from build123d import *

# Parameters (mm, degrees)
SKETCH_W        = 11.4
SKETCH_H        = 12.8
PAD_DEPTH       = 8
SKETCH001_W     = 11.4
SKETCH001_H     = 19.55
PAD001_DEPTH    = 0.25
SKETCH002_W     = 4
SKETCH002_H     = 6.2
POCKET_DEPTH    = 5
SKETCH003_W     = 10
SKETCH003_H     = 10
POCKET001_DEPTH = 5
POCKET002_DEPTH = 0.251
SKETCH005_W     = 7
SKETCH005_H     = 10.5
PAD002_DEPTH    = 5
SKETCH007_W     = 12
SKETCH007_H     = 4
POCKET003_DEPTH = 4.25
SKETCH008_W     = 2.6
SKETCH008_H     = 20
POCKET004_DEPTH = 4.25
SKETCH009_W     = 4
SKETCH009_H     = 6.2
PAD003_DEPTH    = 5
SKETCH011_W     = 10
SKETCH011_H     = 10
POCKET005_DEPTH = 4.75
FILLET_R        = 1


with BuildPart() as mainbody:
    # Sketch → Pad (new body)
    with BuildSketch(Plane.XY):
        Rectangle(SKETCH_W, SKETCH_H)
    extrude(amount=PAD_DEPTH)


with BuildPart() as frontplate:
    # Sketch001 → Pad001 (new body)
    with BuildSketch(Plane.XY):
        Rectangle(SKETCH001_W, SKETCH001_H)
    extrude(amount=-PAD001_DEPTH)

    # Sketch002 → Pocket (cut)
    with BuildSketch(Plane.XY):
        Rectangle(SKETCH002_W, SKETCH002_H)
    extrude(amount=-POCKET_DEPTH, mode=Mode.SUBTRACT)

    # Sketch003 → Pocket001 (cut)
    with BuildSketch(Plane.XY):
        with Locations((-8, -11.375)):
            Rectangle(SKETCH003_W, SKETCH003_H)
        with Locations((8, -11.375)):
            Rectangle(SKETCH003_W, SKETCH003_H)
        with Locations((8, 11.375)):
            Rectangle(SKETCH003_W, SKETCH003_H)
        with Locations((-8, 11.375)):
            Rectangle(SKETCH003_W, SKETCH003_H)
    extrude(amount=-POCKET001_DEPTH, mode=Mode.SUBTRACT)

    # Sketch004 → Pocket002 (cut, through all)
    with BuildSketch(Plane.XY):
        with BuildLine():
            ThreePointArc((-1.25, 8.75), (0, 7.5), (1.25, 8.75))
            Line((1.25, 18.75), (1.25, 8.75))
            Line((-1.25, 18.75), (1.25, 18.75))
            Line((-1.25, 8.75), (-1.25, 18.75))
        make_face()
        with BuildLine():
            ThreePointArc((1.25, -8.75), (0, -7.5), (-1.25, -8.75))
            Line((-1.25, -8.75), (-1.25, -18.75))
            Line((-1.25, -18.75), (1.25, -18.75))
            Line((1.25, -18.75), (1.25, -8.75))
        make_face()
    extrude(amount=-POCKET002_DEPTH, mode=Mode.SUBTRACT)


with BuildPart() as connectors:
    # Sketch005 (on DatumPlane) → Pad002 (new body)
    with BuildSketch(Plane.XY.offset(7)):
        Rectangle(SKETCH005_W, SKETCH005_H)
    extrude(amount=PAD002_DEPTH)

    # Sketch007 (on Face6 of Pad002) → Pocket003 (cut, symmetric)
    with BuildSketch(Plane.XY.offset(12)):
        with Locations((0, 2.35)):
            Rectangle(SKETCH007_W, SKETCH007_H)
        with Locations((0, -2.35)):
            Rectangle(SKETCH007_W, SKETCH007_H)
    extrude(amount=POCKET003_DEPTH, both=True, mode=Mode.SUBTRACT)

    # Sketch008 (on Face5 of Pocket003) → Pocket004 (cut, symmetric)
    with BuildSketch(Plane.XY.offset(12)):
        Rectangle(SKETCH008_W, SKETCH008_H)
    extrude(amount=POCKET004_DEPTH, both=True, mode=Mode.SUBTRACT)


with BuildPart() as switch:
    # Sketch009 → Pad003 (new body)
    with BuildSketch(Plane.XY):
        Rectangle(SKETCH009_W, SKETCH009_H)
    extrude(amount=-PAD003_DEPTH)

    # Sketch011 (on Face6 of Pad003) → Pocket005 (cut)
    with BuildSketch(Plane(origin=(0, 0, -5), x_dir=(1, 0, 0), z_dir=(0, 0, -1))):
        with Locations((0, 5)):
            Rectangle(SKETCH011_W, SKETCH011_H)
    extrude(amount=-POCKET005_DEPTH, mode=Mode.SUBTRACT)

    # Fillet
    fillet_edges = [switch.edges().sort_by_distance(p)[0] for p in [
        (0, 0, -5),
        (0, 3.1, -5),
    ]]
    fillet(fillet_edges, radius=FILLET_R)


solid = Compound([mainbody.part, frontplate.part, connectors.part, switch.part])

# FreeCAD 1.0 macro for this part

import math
import FreeCAD as App
import Part
import Sketcher
from FreeCAD import Vector
Q = App.Units.Quantity


def edges_at(feature, points):
    """Names of the edges that pass closest to the given points."""
    edges = feature.Shape.Edges
    near = lambda p: min(range(len(edges)), key=lambda i: edges[i].distToShape(Part.Vertex(*p))[0])
    return sorted({f"Edge{near(p) + 1}" for p in points})

doc = App.newDocument("Part")
body = doc.addObject("PartDesign::Body", "Body")

# Sketch on XY plane
sketch1 = body.newObject("Sketcher::SketchObject", "Sketch")
sketch1.AttachmentSupport = (doc.getObject("XY_Plane"), [""])
sketch1.MapMode = "FlatFace"
sketch1.addGeometry(Part.LineSegment(Vector(-6, 6, 0), Vector(-6, -6, 0)), False)
sketch1.addGeometry(Part.LineSegment(Vector(-6, -6, 0), Vector(6, -6, 0)), False)
sketch1.addGeometry(Part.LineSegment(Vector(6, -6, 0), Vector(6, 6, 0)), False)
sketch1.addGeometry(Part.LineSegment(Vector(6, 6, 0), Vector(-6, 6, 0)), False)
sketch1.addConstraint(Sketcher.Constraint("Coincident", 0, 2, 1, 1))
sketch1.addConstraint(Sketcher.Constraint("Coincident", 1, 2, 2, 1))
sketch1.addConstraint(Sketcher.Constraint("Coincident", 2, 2, 3, 1))
sketch1.addConstraint(Sketcher.Constraint("Coincident", 3, 2, 0, 1))
sketch1.addConstraint(Sketcher.Constraint("Vertical", 0))
sketch1.addConstraint(Sketcher.Constraint("Horizontal", 1))
sketch1.addConstraint(Sketcher.Constraint("Vertical", 2))
sketch1.addConstraint(Sketcher.Constraint("Horizontal", 3))
sketch1.addConstraint(Sketcher.Constraint("Symmetric", 0, 2, 2, 2, -1, 1))
sketch1.addConstraint(Sketcher.Constraint("DistanceX", 1, 1, 1, 2, Q("11.4 mm")))
sketch1.addConstraint(Sketcher.Constraint("DistanceY", 0, 2, 0, 1, Q("12.8 mm")))
pad1 = body.newObject("PartDesign::Pad", "Pad")
pad1.Profile = sketch1
pad1.Length = 8
body2 = doc.addObject("PartDesign::Body", "Body001")

# Sketch on XY plane
sketch2 = body2.newObject("Sketcher::SketchObject", "Sketch001")
sketch2.AttachmentSupport = (doc.getObject("XY_Plane001"), [""])
sketch2.MapMode = "FlatFace"
sketch2.addGeometry(Part.LineSegment(Vector(-6, 10, 0), Vector(-6, -10, 0)), False)
sketch2.addGeometry(Part.LineSegment(Vector(-6, -10, 0), Vector(6, -10, 0)), False)
sketch2.addGeometry(Part.LineSegment(Vector(6, -10, 0), Vector(6, 10, 0)), False)
sketch2.addGeometry(Part.LineSegment(Vector(6, 10, 0), Vector(-6, 10, 0)), False)
sketch2.addConstraint(Sketcher.Constraint("Coincident", 0, 2, 1, 1))
sketch2.addConstraint(Sketcher.Constraint("Coincident", 1, 2, 2, 1))
sketch2.addConstraint(Sketcher.Constraint("Coincident", 2, 2, 3, 1))
sketch2.addConstraint(Sketcher.Constraint("Coincident", 3, 2, 0, 1))
sketch2.addConstraint(Sketcher.Constraint("Vertical", 0))
sketch2.addConstraint(Sketcher.Constraint("Horizontal", 1))
sketch2.addConstraint(Sketcher.Constraint("Vertical", 2))
sketch2.addConstraint(Sketcher.Constraint("Horizontal", 3))
sketch2.addConstraint(Sketcher.Constraint("Symmetric", 0, 2, 2, 2, -1, 1))
sketch2.addConstraint(Sketcher.Constraint("DistanceX", 1, 1, 1, 2, Q("11.4 mm")))
sketch2.addConstraint(Sketcher.Constraint("DistanceY", 0, 2, 0, 1, Q("19.55 mm")))
pad2 = body2.newObject("PartDesign::Pad", "Pad001")
pad2.Profile = sketch2
pad2.Length = 0.25
pad2.Reversed = True

# Sketch on XY plane
sketch3 = body2.newObject("Sketcher::SketchObject", "Sketch002")
sketch3.AttachmentSupport = (doc.getObject("XY_Plane001"), [""])
sketch3.MapMode = "FlatFace"
sketch3.addGeometry(Part.LineSegment(Vector(-2, 3.1, 0), Vector(-2, -3.1, 0)), False)
sketch3.addGeometry(Part.LineSegment(Vector(-2, -3.1, 0), Vector(2, -3.1, 0)), False)
sketch3.addGeometry(Part.LineSegment(Vector(2, -3.1, 0), Vector(2, 3.1, 0)), False)
sketch3.addGeometry(Part.LineSegment(Vector(2, 3.1, 0), Vector(-2, 3.1, 0)), False)
sketch3.addConstraint(Sketcher.Constraint("Coincident", 0, 2, 1, 1))
sketch3.addConstraint(Sketcher.Constraint("Coincident", 1, 2, 2, 1))
sketch3.addConstraint(Sketcher.Constraint("Coincident", 2, 2, 3, 1))
sketch3.addConstraint(Sketcher.Constraint("Coincident", 3, 2, 0, 1))
sketch3.addConstraint(Sketcher.Constraint("Vertical", 0))
sketch3.addConstraint(Sketcher.Constraint("Horizontal", 1))
sketch3.addConstraint(Sketcher.Constraint("Vertical", 2))
sketch3.addConstraint(Sketcher.Constraint("Horizontal", 3))
sketch3.addConstraint(Sketcher.Constraint("Symmetric", 0, 2, 2, 2, -1, 1))
sketch3.addConstraint(Sketcher.Constraint("DistanceX", 1, 1, 1, 2, Q("4 mm")))
sketch3.addConstraint(Sketcher.Constraint("DistanceY", 0, 2, 0, 1, Q("6.2 mm")))
pocket1 = body2.newObject("PartDesign::Pocket", "Pocket")
pocket1.Profile = sketch3
pocket1.Length = 5

# Sketch on XY plane
sketch4 = body2.newObject("Sketcher::SketchObject", "Sketch003")
sketch4.AttachmentSupport = (doc.getObject("XY_Plane001"), [""])
sketch4.MapMode = "FlatFace"
sketch4.addGeometry(Part.LineSegment(Vector(-13, -6, 0), Vector(-13, -16, 0)), False)
sketch4.addGeometry(Part.LineSegment(Vector(-13, -16, 0), Vector(-3, -16, 0)), False)
sketch4.addGeometry(Part.LineSegment(Vector(-3, -16, 0), Vector(-3, -6, 0)), False)
sketch4.addGeometry(Part.LineSegment(Vector(-3, -6, 0), Vector(-13, -6, 0)), False)
sketch4.addGeometry(Part.LineSegment(Vector(3, -6, 0), Vector(3, -16, 0)), False)
sketch4.addGeometry(Part.LineSegment(Vector(3, -16, 0), Vector(13, -16, 0)), False)
sketch4.addGeometry(Part.LineSegment(Vector(13, -16, 0), Vector(13, -6, 0)), False)
sketch4.addGeometry(Part.LineSegment(Vector(13, -6, 0), Vector(3, -6, 0)), False)
sketch4.addGeometry(Part.LineSegment(Vector(3, 16, 0), Vector(3, 6, 0)), False)
sketch4.addGeometry(Part.LineSegment(Vector(3, 6, 0), Vector(13, 6, 0)), False)
sketch4.addGeometry(Part.LineSegment(Vector(13, 6, 0), Vector(13, 16, 0)), False)
sketch4.addGeometry(Part.LineSegment(Vector(13, 16, 0), Vector(3, 16, 0)), False)
sketch4.addGeometry(Part.LineSegment(Vector(-13, 16, 0), Vector(-13, 6, 0)), False)
sketch4.addGeometry(Part.LineSegment(Vector(-13, 6, 0), Vector(-3, 6, 0)), False)
sketch4.addGeometry(Part.LineSegment(Vector(-3, 6, 0), Vector(-3, 16, 0)), False)
sketch4.addGeometry(Part.LineSegment(Vector(-3, 16, 0), Vector(-13, 16, 0)), False)
sketch4.addConstraint(Sketcher.Constraint("Coincident", 0, 2, 1, 1))
sketch4.addConstraint(Sketcher.Constraint("Coincident", 1, 2, 2, 1))
sketch4.addConstraint(Sketcher.Constraint("Coincident", 2, 2, 3, 1))
sketch4.addConstraint(Sketcher.Constraint("Coincident", 3, 2, 0, 1))
sketch4.addConstraint(Sketcher.Constraint("Coincident", 4, 2, 5, 1))
sketch4.addConstraint(Sketcher.Constraint("Coincident", 5, 2, 6, 1))
sketch4.addConstraint(Sketcher.Constraint("Coincident", 6, 2, 7, 1))
sketch4.addConstraint(Sketcher.Constraint("Coincident", 7, 2, 4, 1))
sketch4.addConstraint(Sketcher.Constraint("Coincident", 8, 2, 9, 1))
sketch4.addConstraint(Sketcher.Constraint("Coincident", 9, 2, 10, 1))
sketch4.addConstraint(Sketcher.Constraint("Coincident", 10, 2, 11, 1))
sketch4.addConstraint(Sketcher.Constraint("Coincident", 11, 2, 8, 1))
sketch4.addConstraint(Sketcher.Constraint("Coincident", 12, 2, 13, 1))
sketch4.addConstraint(Sketcher.Constraint("Coincident", 13, 2, 14, 1))
sketch4.addConstraint(Sketcher.Constraint("Coincident", 14, 2, 15, 1))
sketch4.addConstraint(Sketcher.Constraint("Coincident", 15, 2, 12, 1))
sketch4.addConstraint(Sketcher.Constraint("Vertical", 0))
sketch4.addConstraint(Sketcher.Constraint("Horizontal", 1))
sketch4.addConstraint(Sketcher.Constraint("Vertical", 2))
sketch4.addConstraint(Sketcher.Constraint("Horizontal", 3))
sketch4.addConstraint(Sketcher.Constraint("Vertical", 4))
sketch4.addConstraint(Sketcher.Constraint("Horizontal", 5))
sketch4.addConstraint(Sketcher.Constraint("Vertical", 6))
sketch4.addConstraint(Sketcher.Constraint("Horizontal", 7))
sketch4.addConstraint(Sketcher.Constraint("Vertical", 8))
sketch4.addConstraint(Sketcher.Constraint("Horizontal", 9))
sketch4.addConstraint(Sketcher.Constraint("Vertical", 10))
sketch4.addConstraint(Sketcher.Constraint("Horizontal", 11))
sketch4.addConstraint(Sketcher.Constraint("Vertical", 12))
sketch4.addConstraint(Sketcher.Constraint("Horizontal", 13))
sketch4.addConstraint(Sketcher.Constraint("Vertical", 14))
sketch4.addConstraint(Sketcher.Constraint("Horizontal", 15))
sketch4.addConstraint(Sketcher.Constraint("Symmetric", 2, 2, 8, 2, -1, 1))
sketch4.addConstraint(Sketcher.Constraint("Symmetric", 0, 2, 10, 2, -1, 1))
sketch4.addConstraint(Sketcher.Constraint("Symmetric", 6, 2, 12, 2, -1, 1))
sketch4.addConstraint(Sketcher.Constraint("Symmetric", 4, 2, 14, 2, -1, 1))
sketch4.addConstraint(Sketcher.Constraint("Symmetric", 1, 2, 4, 2, -2))
sketch4.addConstraint(Sketcher.Constraint("Symmetric", 3, 2, 6, 2, -2))
sketch4.addConstraint(Sketcher.Constraint("Equal", 15, 0))
sketch4.addConstraint(Sketcher.Constraint("DistanceX", 1, 1, 1, 2, Q("10 mm")))
sketch4.addConstraint(Sketcher.Constraint("DistanceX", 0, 2, -1, 1, Q("13 mm")))
sketch4.addConstraint(Sketcher.Constraint("DistanceY", 7, 2, 8, 2, Q("12.75 mm")))
pocket2 = body2.newObject("PartDesign::Pocket", "Pocket001")
pocket2.Profile = sketch4
pocket2.Length = 5

# Sketch on XY plane
sketch5 = body2.newObject("Sketcher::SketchObject", "Sketch004")
sketch5.AttachmentSupport = (doc.getObject("XY_Plane001"), [""])
sketch5.MapMode = "FlatFace"
sketch5.addGeometry(Part.ArcOfCircle(Part.Circle(Vector(0, 8.8, 0), Vector(0, 0, 1), 1.2), math.radians(180), math.radians(360)), False)
sketch5.addGeometry(Part.LineSegment(Vector(1.2, 8.8, 0), Vector(1.2, 18.8, 0)), False)
sketch5.addGeometry(Part.LineSegment(Vector(1.2, 18.8, 0), Vector(-1.2, 18.8, 0)), False)
sketch5.addGeometry(Part.LineSegment(Vector(-1.2, 18.8, 0), Vector(-1.2, 8.8, 0)), False)
sketch5.addGeometry(Part.ArcOfCircle(Part.Circle(Vector(0, -8.8, 0), Vector(0, 0, 1), 1.2), math.radians(0), math.radians(180)), False)
sketch5.addGeometry(Part.LineSegment(Vector(-1.2, -8.8, 0), Vector(-1.2, -18.8, 0)), False)
sketch5.addGeometry(Part.LineSegment(Vector(-1.2, -18.8, 0), Vector(1.2, -18.8, 0)), False)
sketch5.addGeometry(Part.LineSegment(Vector(1.2, -18.8, 0), Vector(1.2, -8.8, 0)), False)
sketch5.addConstraint(Sketcher.Constraint("Tangent", 0, 2, 1, 1))
sketch5.addConstraint(Sketcher.Constraint("Coincident", 1, 2, 2, 1))
sketch5.addConstraint(Sketcher.Constraint("Coincident", 2, 2, 3, 1))
sketch5.addConstraint(Sketcher.Constraint("Tangent", 3, 2, 0, 1))
sketch5.addConstraint(Sketcher.Constraint("Tangent", 4, 2, 5, 1))
sketch5.addConstraint(Sketcher.Constraint("Coincident", 5, 2, 6, 1))
sketch5.addConstraint(Sketcher.Constraint("Coincident", 6, 2, 7, 1))
sketch5.addConstraint(Sketcher.Constraint("Tangent", 7, 2, 4, 1))
sketch5.addConstraint(Sketcher.Constraint("Vertical", 1))
sketch5.addConstraint(Sketcher.Constraint("Horizontal", 2))
sketch5.addConstraint(Sketcher.Constraint("Vertical", 3))
sketch5.addConstraint(Sketcher.Constraint("Vertical", 5))
sketch5.addConstraint(Sketcher.Constraint("Horizontal", 6))
sketch5.addConstraint(Sketcher.Constraint("Vertical", 7))
sketch5.addConstraint(Sketcher.Constraint("Equal", 0, 4))
sketch5.addConstraint(Sketcher.Constraint("Symmetric", 0, 3, 4, 3, -1, 1))
sketch5.addConstraint(Sketcher.Constraint("Symmetric", 2, 2, 5, 2, -1))
sketch5.addConstraint(Sketcher.Constraint("DistanceY", 1, 1, 1, 2, Q("10 mm")))
sketch5.addConstraint(Sketcher.Constraint("Radius", 0, Q("1.25 mm")))
sketch5.addConstraint(Sketcher.Constraint("DistanceY", 4, 3, 0, 3, Q("17.5 mm")))
pocket3 = body2.newObject("PartDesign::Pocket", "Pocket002")
pocket3.Profile = sketch5
pocket3.Type = "ThroughAll"
body3 = doc.addObject("PartDesign::Body", "Body002")

# Sketch on XY plane
sketch6 = body3.newObject("Sketcher::SketchObject", "Sketch005")
sketch6.AttachmentSupport = (doc.getObject("XY_Plane002"), [""])
sketch6.MapMode = "FlatFace"
sketch6.AttachmentOffset = App.Placement(Vector(0, 0, 7), App.Rotation())
sketch6.addGeometry(Part.LineSegment(Vector(-4, 5, 0), Vector(-4, -5, 0)), False)
sketch6.addGeometry(Part.LineSegment(Vector(-4, -5, 0), Vector(4, -5, 0)), False)
sketch6.addGeometry(Part.LineSegment(Vector(4, -5, 0), Vector(4, 5, 0)), False)
sketch6.addGeometry(Part.LineSegment(Vector(4, 5, 0), Vector(-4, 5, 0)), False)
sketch6.addConstraint(Sketcher.Constraint("Coincident", 0, 2, 1, 1))
sketch6.addConstraint(Sketcher.Constraint("Coincident", 1, 2, 2, 1))
sketch6.addConstraint(Sketcher.Constraint("Coincident", 2, 2, 3, 1))
sketch6.addConstraint(Sketcher.Constraint("Coincident", 3, 2, 0, 1))
sketch6.addConstraint(Sketcher.Constraint("Vertical", 0))
sketch6.addConstraint(Sketcher.Constraint("Horizontal", 1))
sketch6.addConstraint(Sketcher.Constraint("Vertical", 2))
sketch6.addConstraint(Sketcher.Constraint("Horizontal", 3))
sketch6.addConstraint(Sketcher.Constraint("Symmetric", 0, 2, 2, 2, -1, 1))
sketch6.addConstraint(Sketcher.Constraint("DistanceX", 1, 1, 1, 2, Q("7 mm")))
sketch6.addConstraint(Sketcher.Constraint("DistanceY", 0, 2, 0, 1, Q("10.5 mm")))
pad3 = body3.newObject("PartDesign::Pad", "Pad002")
pad3.Profile = sketch6
pad3.Length = 5

# Sketch on XY plane
sketch7 = body3.newObject("Sketcher::SketchObject", "Sketch006")
sketch7.AttachmentSupport = (doc.getObject("XY_Plane002"), [""])
sketch7.MapMode = "FlatFace"
sketch7.AttachmentOffset = App.Placement(Vector(0, 0, 12), App.Rotation())
sketch7.addGeometry(Part.LineSegment(Vector(-6, 4.3, 0), Vector(-6, 0.3, 0)), False)
sketch7.addGeometry(Part.LineSegment(Vector(-6, 0.3, 0), Vector(6, 0.3, 0)), False)
sketch7.addGeometry(Part.LineSegment(Vector(6, 0.3, 0), Vector(6, 4.3, 0)), False)
sketch7.addGeometry(Part.LineSegment(Vector(6, 4.3, 0), Vector(-6, 4.3, 0)), False)
sketch7.addGeometry(Part.LineSegment(Vector(-6, -0.3, 0), Vector(-6, -4.3, 0)), False)
sketch7.addGeometry(Part.LineSegment(Vector(-6, -4.3, 0), Vector(6, -4.3, 0)), False)
sketch7.addGeometry(Part.LineSegment(Vector(6, -4.3, 0), Vector(6, -0.3, 0)), False)
sketch7.addGeometry(Part.LineSegment(Vector(6, -0.3, 0), Vector(-6, -0.3, 0)), False)
sketch7.addConstraint(Sketcher.Constraint("Coincident", 0, 2, 1, 1))
sketch7.addConstraint(Sketcher.Constraint("Coincident", 1, 2, 2, 1))
sketch7.addConstraint(Sketcher.Constraint("Coincident", 2, 2, 3, 1))
sketch7.addConstraint(Sketcher.Constraint("Coincident", 3, 2, 0, 1))
sketch7.addConstraint(Sketcher.Constraint("Coincident", 4, 2, 5, 1))
sketch7.addConstraint(Sketcher.Constraint("Coincident", 5, 2, 6, 1))
sketch7.addConstraint(Sketcher.Constraint("Coincident", 6, 2, 7, 1))
sketch7.addConstraint(Sketcher.Constraint("Coincident", 7, 2, 4, 1))
sketch7.addConstraint(Sketcher.Constraint("Vertical", 0))
sketch7.addConstraint(Sketcher.Constraint("Horizontal", 1))
sketch7.addConstraint(Sketcher.Constraint("Vertical", 2))
sketch7.addConstraint(Sketcher.Constraint("Horizontal", 3))
sketch7.addConstraint(Sketcher.Constraint("Vertical", 4))
sketch7.addConstraint(Sketcher.Constraint("Horizontal", 5))
sketch7.addConstraint(Sketcher.Constraint("Vertical", 6))
sketch7.addConstraint(Sketcher.Constraint("Horizontal", 7))
sketch7.addConstraint(Sketcher.Constraint("Symmetric", 2, 2, 4, 2, -1, 1))
sketch7.addConstraint(Sketcher.Constraint("Symmetric", 0, 2, 6, 2, -1, 1))
sketch7.addConstraint(Sketcher.Constraint("Vertical", 3, 2, 4, 2))
sketch7.addConstraint(Sketcher.Constraint("DistanceX", 1, 1, 1, 2, Q("12 mm")))
sketch7.addConstraint(Sketcher.Constraint("DistanceY", 0, 2, 0, 1, Q("4 mm")))
sketch7.addConstraint(Sketcher.Constraint("DistanceY", 4, 2, 0, 2, Q("4.7 mm")))
pocket4 = body3.newObject("PartDesign::Pocket", "Pocket003")
pocket4.Profile = sketch7
pocket4.Length = 8.5
pocket4.Midplane = True

# Sketch on XY plane
sketch8 = body3.newObject("Sketcher::SketchObject", "Sketch007")
sketch8.AttachmentSupport = (doc.getObject("XY_Plane002"), [""])
sketch8.MapMode = "FlatFace"
sketch8.AttachmentOffset = App.Placement(Vector(0, 0, 12), App.Rotation())
sketch8.addGeometry(Part.LineSegment(Vector(-1.3, 10, 0), Vector(-1.3, -10, 0)), False)
sketch8.addGeometry(Part.LineSegment(Vector(-1.3, -10, 0), Vector(1.3, -10, 0)), False)
sketch8.addGeometry(Part.LineSegment(Vector(1.3, -10, 0), Vector(1.3, 10, 0)), False)
sketch8.addGeometry(Part.LineSegment(Vector(1.3, 10, 0), Vector(-1.3, 10, 0)), False)
sketch8.addConstraint(Sketcher.Constraint("Coincident", 0, 2, 1, 1))
sketch8.addConstraint(Sketcher.Constraint("Coincident", 1, 2, 2, 1))
sketch8.addConstraint(Sketcher.Constraint("Coincident", 2, 2, 3, 1))
sketch8.addConstraint(Sketcher.Constraint("Coincident", 3, 2, 0, 1))
sketch8.addConstraint(Sketcher.Constraint("Vertical", 0))
sketch8.addConstraint(Sketcher.Constraint("Horizontal", 1))
sketch8.addConstraint(Sketcher.Constraint("Vertical", 2))
sketch8.addConstraint(Sketcher.Constraint("Horizontal", 3))
sketch8.addConstraint(Sketcher.Constraint("Symmetric", 0, 2, 2, 2, -1, 1))
sketch8.addConstraint(Sketcher.Constraint("DistanceY", 0, 2, 0, 1, Q("20 mm")))
sketch8.addConstraint(Sketcher.Constraint("DistanceX", 1, 1, 1, 2, Q("2.6 mm")))
pocket5 = body3.newObject("PartDesign::Pocket", "Pocket004")
pocket5.Profile = sketch8
pocket5.Length = 8.5
pocket5.Midplane = True
body4 = doc.addObject("PartDesign::Body", "Body003")

# Sketch on XY plane
sketch9 = body4.newObject("Sketcher::SketchObject", "Sketch008")
sketch9.AttachmentSupport = (doc.getObject("XY_Plane003"), [""])
sketch9.MapMode = "FlatFace"
sketch9.addGeometry(Part.LineSegment(Vector(-2, 3.1, 0), Vector(-2, -3.1, 0)), False)
sketch9.addGeometry(Part.LineSegment(Vector(-2, -3.1, 0), Vector(2, -3.1, 0)), False)
sketch9.addGeometry(Part.LineSegment(Vector(2, -3.1, 0), Vector(2, 3.1, 0)), False)
sketch9.addGeometry(Part.LineSegment(Vector(2, 3.1, 0), Vector(-2, 3.1, 0)), False)
sketch9.addConstraint(Sketcher.Constraint("Coincident", 0, 2, 1, 1))
sketch9.addConstraint(Sketcher.Constraint("Coincident", 1, 2, 2, 1))
sketch9.addConstraint(Sketcher.Constraint("Coincident", 2, 2, 3, 1))
sketch9.addConstraint(Sketcher.Constraint("Coincident", 3, 2, 0, 1))
sketch9.addConstraint(Sketcher.Constraint("Vertical", 0))
sketch9.addConstraint(Sketcher.Constraint("Horizontal", 1))
sketch9.addConstraint(Sketcher.Constraint("Vertical", 2))
sketch9.addConstraint(Sketcher.Constraint("Horizontal", 3))
sketch9.addConstraint(Sketcher.Constraint("Symmetric", 0, 2, 2, 2, -1, 1))
sketch9.addConstraint(Sketcher.Constraint("DistanceX", 1, 1, 1, 2, Q("4 mm")))
sketch9.addConstraint(Sketcher.Constraint("DistanceY", 0, 2, 0, 1, Q("6.2 mm")))
pad4 = body4.newObject("PartDesign::Pad", "Pad003")
pad4.Profile = sketch9
pad4.Length = 5
pad4.Reversed = True

# Sketch on XY plane
sketch10 = body4.newObject("Sketcher::SketchObject", "Sketch009")
sketch10.AttachmentSupport = (doc.getObject("XY_Plane003"), [""])
sketch10.MapMode = "FlatFace"
sketch10.AttachmentOffset = App.Placement(Vector(0, 0, -5), App.Rotation())
sketch10.addGeometry(Part.LineSegment(Vector(-5, -10, 0), Vector(-5, 0, 0)), False)
sketch10.addGeometry(Part.LineSegment(Vector(-5, 0, 0), Vector(5, 0, 0)), False)
sketch10.addGeometry(Part.LineSegment(Vector(5, 0, 0), Vector(5, -10, 0)), False)
sketch10.addGeometry(Part.LineSegment(Vector(5, -10, 0), Vector(-5, -10, 0)), False)
sketch10.addConstraint(Sketcher.Constraint("Coincident", 0, 2, 1, 1))
sketch10.addConstraint(Sketcher.Constraint("Coincident", 1, 2, 2, 1))
sketch10.addConstraint(Sketcher.Constraint("Coincident", 2, 2, 3, 1))
sketch10.addConstraint(Sketcher.Constraint("Coincident", 3, 2, 0, 1))
sketch10.addConstraint(Sketcher.Constraint("Vertical", 0))
sketch10.addConstraint(Sketcher.Constraint("Horizontal", 1))
sketch10.addConstraint(Sketcher.Constraint("Vertical", 2))
sketch10.addConstraint(Sketcher.Constraint("Horizontal", 3))
sketch10.addConstraint(Sketcher.Constraint("Symmetric", 0, 2, 1, 2, -1, 1))
sketch10.addConstraint(Sketcher.Constraint("Equal", 3, 0))
sketch10.addConstraint(Sketcher.Constraint("DistanceX", 1, 1, 1, 2, Q("10 mm")))
pocket6 = body4.newObject("PartDesign::Pocket", "Pocket005")
pocket6.Profile = sketch10
pocket6.Length = 4.75
pocket6.Reversed = True
doc.recompute()

fillet = body4.newObject("PartDesign::Fillet", "Fillet")
fillet.Base = (pocket6, edges_at(pocket6, [(0, 0, -5), (0, 3.1, -5)]))
fillet.Radius = 1

doc.recompute()
